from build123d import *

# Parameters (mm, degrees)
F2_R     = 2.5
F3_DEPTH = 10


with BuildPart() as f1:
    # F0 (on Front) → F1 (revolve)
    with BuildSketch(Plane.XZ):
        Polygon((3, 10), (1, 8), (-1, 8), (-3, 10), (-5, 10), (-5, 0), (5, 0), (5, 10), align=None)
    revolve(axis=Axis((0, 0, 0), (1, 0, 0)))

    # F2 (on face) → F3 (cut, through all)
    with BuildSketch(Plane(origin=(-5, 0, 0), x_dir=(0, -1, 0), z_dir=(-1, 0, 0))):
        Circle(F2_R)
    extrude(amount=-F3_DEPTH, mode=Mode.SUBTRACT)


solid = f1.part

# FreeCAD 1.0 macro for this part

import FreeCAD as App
import Part
import Sketcher
from FreeCAD import Vector
Q = App.Units.Quantity

doc = App.newDocument("Part")
body = doc.addObject("PartDesign::Body", "Body")

sketch1 = body.newObject("Sketcher::SketchObject", "Sketch")
sketch1.AttachmentSupport = (doc.getObject("XZ_Plane"), [""])
sketch1.MapMode = "FlatFace"
sketch1.addGeometry([
    Part.LineSegment(Vector(3, 10, 0), Vector(1, 8, 0)),
    Part.LineSegment(Vector(1, 8, 0), Vector(-1, 8, 0)),
    Part.LineSegment(Vector(-1, 8, 0), Vector(-3, 10, 0)),
    Part.LineSegment(Vector(-3, 10, 0), Vector(-5, 10, 0)),
    Part.LineSegment(Vector(-5, 10, 0), Vector(-5, 0, 0)),
    Part.LineSegment(Vector(-5, 0, 0), Vector(5, 0, 0)),
    Part.LineSegment(Vector(5, 0, 0), Vector(5, 10, 0)),
    Part.LineSegment(Vector(5, 10, 0), Vector(3, 10, 0)),
], False)
sketch1.addConstraint([
    Sketcher.Constraint("Coincident", 0, 2, 1, 1),
    Sketcher.Constraint("Coincident", 1, 2, 2, 1),
    Sketcher.Constraint("Coincident", 2, 2, 3, 1),
    Sketcher.Constraint("Coincident", 3, 2, 4, 1),
    Sketcher.Constraint("Coincident", 4, 2, 5, 1),
    Sketcher.Constraint("Coincident", 5, 2, 6, 1),
    Sketcher.Constraint("Coincident", 6, 2, 7, 1),
    Sketcher.Constraint("Coincident", 7, 2, 0, 1),
    Sketcher.Constraint("Horizontal", 1),
    Sketcher.Constraint("Horizontal", 3),
    Sketcher.Constraint("Vertical", 4),
    Sketcher.Constraint("Horizontal", 5),
    Sketcher.Constraint("Vertical", 6),
    Sketcher.Constraint("Horizontal", 7),
    Sketcher.Constraint("Symmetric", 4, 2, 5, 2, -1, 1),
    Sketcher.Constraint("Symmetric", 2, 2, 7, 2, -2),
    Sketcher.Constraint("Perpendicular", 0, 2),
    Sketcher.Constraint("Equal", 1, 3),
    Sketcher.Constraint("Equal", 5, 4),
    Sketcher.Constraint("Equal", 0, 2),
    Sketcher.Constraint("DistanceX", 1, 2, 1, 1, Q("2 mm")),
    Sketcher.Constraint("DistanceX", 5, 1, 5, 2, Q("10 mm")),
])
revolution = body.newObject("PartDesign::Revolution", "Revolution")
revolution.Profile = sketch1
revolution.ReferenceAxis = (sketch1, ["H_Axis"])
revolution.Angle = 360

sketch2 = body.newObject("Sketcher::SketchObject", "Sketch001")
sketch2.AttachmentSupport = (doc.getObject("YZ_Plane"), [""])
sketch2.MapMode = "FlatFace"
sketch2.AttachmentOffset = App.Placement(Vector(0, 0, -5), App.Rotation())
sketch2.addGeometry(Part.Circle(Vector(0, 0, 0), Vector(0, 0, 1), 2.5), False)
sketch2.addConstraint([
    Sketcher.Constraint("Coincident", 0, 3, -1, 1),
    Sketcher.Constraint("Diameter", 0, Q("5 mm")),
])
pocket1 = body.newObject("PartDesign::Pocket", "Pocket")
pocket1.Profile = sketch2
pocket1.Type = "ThroughAll"
pocket1.Reversed = True

doc.recompute()
